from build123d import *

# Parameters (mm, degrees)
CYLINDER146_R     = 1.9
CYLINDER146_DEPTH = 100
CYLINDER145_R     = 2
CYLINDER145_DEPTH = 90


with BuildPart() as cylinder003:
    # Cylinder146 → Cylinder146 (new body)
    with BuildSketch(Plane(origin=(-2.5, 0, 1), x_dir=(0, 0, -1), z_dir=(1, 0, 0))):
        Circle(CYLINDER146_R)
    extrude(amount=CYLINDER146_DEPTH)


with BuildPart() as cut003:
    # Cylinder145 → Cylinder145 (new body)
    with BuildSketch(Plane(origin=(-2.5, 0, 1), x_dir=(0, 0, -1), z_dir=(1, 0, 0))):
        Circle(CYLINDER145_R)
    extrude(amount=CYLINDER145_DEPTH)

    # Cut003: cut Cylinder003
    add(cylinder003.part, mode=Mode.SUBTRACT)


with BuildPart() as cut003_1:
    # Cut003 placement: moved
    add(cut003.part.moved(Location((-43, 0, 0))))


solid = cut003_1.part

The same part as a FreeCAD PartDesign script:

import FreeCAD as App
import Part
import Sketcher
from FreeCAD import Vector

doc = App.newDocument("Part")
body = doc.addObject("PartDesign::Body", "Body")

sketch1 = body.newObject("Sketcher::SketchObject", "Sketch")
sketch1.AttachmentSupport = (doc.getObject("YZ_Plane"), [""])
sketch1.MapMode = "FlatFace"
sketch1.AttachmentOffset = App.Placement(Vector(0, 0, -2.5), App.Rotation())
sketch1.addGeometry(Part.Circle(Vector(0, 1, 0), Vector(0, 0, 1), 1.9), False)
sketch1.addConstraint([
    Sketcher.Constraint("PointOnObject", 0, 3, -2),
    Sketcher.Constraint("Diameter", 0, 3.8),
    Sketcher.Constraint("DistanceY", -1, 1, 0, 3, 1.0),
])
pad1 = body.newObject("PartDesign::Pad", "Pad")
pad1.Profile = sketch1
pad1.Length = 100
body2 = doc.addObject("PartDesign::Body", "Body001")

sketch2 = body2.newObject("Sketcher::SketchObject", "Sketch001")
sketch2.AttachmentSupport = (doc.getObject("YZ_Plane001"), [""])
sketch2.MapMode = "FlatFace"
sketch2.AttachmentOffset = App.Placement(Vector(0, 0, -2.5), App.Rotation())
sketch2.addGeometry(Part.Circle(Vector(0, 1, 0), Vector(0, 0, 1), 2), False)
sketch2.addConstraint([
    Sketcher.Constraint("PointOnObject", 0, 3, -2),
    Sketcher.Constraint("Diameter", 0, 4.0),
    Sketcher.Constraint("DistanceY", -1, 1, 0, 3, 1.0),
])
pad2 = body2.newObject("PartDesign::Pad", "Pad001")
pad2.Profile = sketch2
pad2.Length = 90
doc.recompute()

boolean = body2.newObject("PartDesign::Boolean", "Boolean")
boolean.Type = "Cut"
boolean.addObjects([body])
body3 = doc.addObject("PartDesign::Body", "Body002")
doc.recompute()

body2.Placement = App.Placement(Vector(-43, 0, 0), App.Rotation(Vector(0, 0, 1), 0))
boolean2 = body3.newObject("PartDesign::Boolean", "Boolean001")
boolean2.Type = "Fuse"
boolean2.addObjects([body2])

doc.recompute()
